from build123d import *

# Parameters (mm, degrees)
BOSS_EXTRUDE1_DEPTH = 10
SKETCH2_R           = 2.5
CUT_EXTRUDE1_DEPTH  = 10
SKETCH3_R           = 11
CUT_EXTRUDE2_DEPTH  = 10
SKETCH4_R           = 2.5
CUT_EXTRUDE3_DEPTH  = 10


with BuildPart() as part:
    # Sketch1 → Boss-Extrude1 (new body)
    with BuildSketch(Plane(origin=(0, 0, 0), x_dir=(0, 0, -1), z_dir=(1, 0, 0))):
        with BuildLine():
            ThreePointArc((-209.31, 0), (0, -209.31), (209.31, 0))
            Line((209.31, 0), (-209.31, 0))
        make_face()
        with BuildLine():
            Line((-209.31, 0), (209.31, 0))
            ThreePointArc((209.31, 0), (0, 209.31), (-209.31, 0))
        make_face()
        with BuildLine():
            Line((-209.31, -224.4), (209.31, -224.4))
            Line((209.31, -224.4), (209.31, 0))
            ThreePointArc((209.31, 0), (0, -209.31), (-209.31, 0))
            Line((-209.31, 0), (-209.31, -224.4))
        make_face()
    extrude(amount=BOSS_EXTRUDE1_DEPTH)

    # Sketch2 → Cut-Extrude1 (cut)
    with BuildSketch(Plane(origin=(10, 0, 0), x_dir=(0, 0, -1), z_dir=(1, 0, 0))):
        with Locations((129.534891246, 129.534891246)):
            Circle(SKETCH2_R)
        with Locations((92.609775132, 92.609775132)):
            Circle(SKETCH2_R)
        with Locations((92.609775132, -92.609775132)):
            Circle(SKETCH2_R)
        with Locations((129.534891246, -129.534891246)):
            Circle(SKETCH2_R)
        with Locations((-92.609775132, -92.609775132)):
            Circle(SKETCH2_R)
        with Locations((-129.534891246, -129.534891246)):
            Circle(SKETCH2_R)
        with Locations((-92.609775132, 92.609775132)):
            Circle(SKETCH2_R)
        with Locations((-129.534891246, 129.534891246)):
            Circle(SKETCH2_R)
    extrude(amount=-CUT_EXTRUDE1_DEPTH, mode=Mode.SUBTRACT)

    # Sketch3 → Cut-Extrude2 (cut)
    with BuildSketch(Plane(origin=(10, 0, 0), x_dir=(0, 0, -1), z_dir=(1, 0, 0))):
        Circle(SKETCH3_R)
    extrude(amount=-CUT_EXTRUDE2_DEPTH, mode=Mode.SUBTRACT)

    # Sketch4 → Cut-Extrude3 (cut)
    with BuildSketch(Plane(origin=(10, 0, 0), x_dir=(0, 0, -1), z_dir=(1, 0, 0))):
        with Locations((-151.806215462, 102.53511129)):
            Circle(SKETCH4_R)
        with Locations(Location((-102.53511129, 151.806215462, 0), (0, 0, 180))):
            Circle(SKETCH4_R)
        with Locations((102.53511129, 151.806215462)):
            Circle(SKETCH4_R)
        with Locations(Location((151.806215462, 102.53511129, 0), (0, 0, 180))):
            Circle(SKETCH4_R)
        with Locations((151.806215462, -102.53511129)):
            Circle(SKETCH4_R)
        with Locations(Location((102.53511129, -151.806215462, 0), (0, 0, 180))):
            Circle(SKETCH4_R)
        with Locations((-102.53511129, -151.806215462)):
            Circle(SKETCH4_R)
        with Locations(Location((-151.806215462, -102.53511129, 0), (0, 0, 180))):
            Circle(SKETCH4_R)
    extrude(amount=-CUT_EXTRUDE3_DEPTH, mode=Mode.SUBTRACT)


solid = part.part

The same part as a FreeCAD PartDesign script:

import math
import FreeCAD as App
import Part
import Sketcher
Q = App.Units.Quantity

doc = App.newDocument("Part")
body = doc.addObject("PartDesign::Body", "Body")

# Sketch on YZ plane
sketch1 = body.newObject("Sketcher::SketchObject", "Sketch")
sketch1.AttachmentSupport = (doc.getObject("YZ_Plane"), [""])
sketch1.MapMode = "FlatFace"
sketch1.addGeometry(Part.ArcOfCircle(Part.Circle(App.Vector(0, 0, 0), App.Vector(0, 0, 1), 209), math.radians(-90), math.radians(90)), False)
sketch1.addGeometry(Part.LineSegment(App.Vector(0, 209, 0), App.Vector(-224, 209, 0)), False)
sketch1.addGeometry(Part.LineSegment(App.Vector(-224, 209, 0), App.Vector(-224, -209, 0)), False)
sketch1.addGeometry(Part.LineSegment(App.Vector(-224, -209, 0), App.Vector(0, -209, 0)), False)
sketch1.addConstraint(Sketcher.Constraint("Tangent", 0, 2, 1, 1))
sketch1.addConstraint(Sketcher.Constraint("Coincident", 1, 2, 2, 1))
sketch1.addConstraint(Sketcher.Constraint("Coincident", 2, 2, 3, 1))
sketch1.addConstraint(Sketcher.Constraint("Tangent", 3, 2, 0, 1))
sketch1.addConstraint(Sketcher.Constraint("Horizontal", 1))
sketch1.addConstraint(Sketcher.Constraint("Vertical", 2))
sketch1.addConstraint(Sketcher.Constraint("Horizontal", 3))
sketch1.addConstraint(Sketcher.Constraint("Coincident", 0, 3, -1, 1))
sketch1.addConstraint(Sketcher.Constraint("Radius", 0, Q("209.31 mm")))
sketch1.addConstraint(Sketcher.Constraint("DistanceX", 1, 2, 1, 1, Q("224.4 mm")))
pad1 = body.newObject("PartDesign::Pad", "Pad")
pad1.Profile = sketch1
pad1.Length = 10

# Sketch on YZ plane
sketch2 = body.newObject("Sketcher::SketchObject", "Sketch001")
sketch2.AttachmentSupport = (doc.getObject("YZ_Plane"), [""])
sketch2.MapMode = "FlatFace"
sketch2.AttachmentOffset = App.Placement(App.Vector(0, 0, 10), App.Rotation())
sketch2.addGeometry(Part.Circle(App.Vector(129.5, -129.5, 0), App.Vector(0, 0, 1), 2.5), False)
sketch2.addGeometry(Part.Circle(App.Vector(92.6, -92.6, 0), App.Vector(0, 0, 1), 2.5), False)
sketch2.addGeometry(Part.Circle(App.Vector(-92.6, -92.6, 0), App.Vector(0, 0, 1), 2.5), False)
sketch2.addGeometry(Part.Circle(App.Vector(-129.5, -129.5, 0), App.Vector(0, 0, 1), 2.5), False)
sketch2.addGeometry(Part.Circle(App.Vector(-92.6, 92.6, 0), App.Vector(0, 0, 1), 2.5), False)
sketch2.addGeometry(Part.Circle(App.Vector(-129.5, 129.5, 0), App.Vector(0, 0, 1), 2.5), False)
sketch2.addGeometry(Part.Circle(App.Vector(92.6, 92.6, 0), App.Vector(0, 0, 1), 2.5), False)
sketch2.addGeometry(Part.Circle(App.Vector(129.5, 129.5, 0), App.Vector(0, 0, 1), 2.5), False)
sketch2.addConstraint(Sketcher.Constraint("Equal", 0, 1))
sketch2.addConstraint(Sketcher.Constraint("Equal", 1, 2))
sketch2.addConstraint(Sketcher.Constraint("Equal", 2, 3))
sketch2.addConstraint(Sketcher.Constraint("Equal", 3, 4))
sketch2.addConstraint(Sketcher.Constraint("Equal", 4, 5))
sketch2.addConstraint(Sketcher.Constraint("Equal", 5, 6))
sketch2.addConstraint(Sketcher.Constraint("Equal", 6, 7))
sketch2.addConstraint(Sketcher.Constraint("Symmetric", 1, 3, 4, 3, -1, 1))
sketch2.addConstraint(Sketcher.Constraint("Symmetric", 0, 3, 5, 3, -1, 1))
sketch2.addConstraint(Sketcher.Constraint("Symmetric", 2, 3, 6, 3, -1, 1))
sketch2.addConstraint(Sketcher.Constraint("Symmetric", 3, 3, 7, 3, -1, 1))
sketch2.addConstraint(Sketcher.Constraint("Symmetric", 1, 3, 2, 3, -2))
sketch2.addConstraint(Sketcher.Constraint("Symmetric", 0, 3, 3, 3, -2))
sketch2.addConstraint(Sketcher.Constraint("Diameter", 0, Q("5 mm")))
sketch2.addConstraint(Sketcher.Constraint("DistanceX", -1, 1, 0, 3, Q("129.534891 mm")))
sketch2.addConstraint(Sketcher.Constraint("DistanceY", 0, 3, -1, 1, Q("129.534891 mm")))
sketch2.addConstraint(Sketcher.Constraint("DistanceX", 2, 3, 1, 3, Q("185.21955 mm")))
sketch2.addConstraint(Sketcher.Constraint("DistanceY", 2, 3, 4, 3, Q("185.21955 mm")))
pocket1 = body.newObject("PartDesign::Pocket", "Pocket")
pocket1.Profile = sketch2
pocket1.Length = 10

# Sketch on YZ plane
sketch3 = body.newObject("Sketcher::SketchObject", "Sketch002")
sketch3.AttachmentSupport = (doc.getObject("YZ_Plane"), [""])
sketch3.MapMode = "FlatFace"
sketch3.AttachmentOffset = App.Placement(App.Vector(0, 0, 10), App.Rotation())
sketch3.addGeometry(Part.Circle(App.Vector(0, 0, 0), App.Vector(0, 0, 1), 11), False)
sketch3.addConstraint(Sketcher.Constraint("Coincident", 0, 3, -1, 1))
sketch3.addConstraint(Sketcher.Constraint("Diameter", 0, Q("22 mm")))
pocket2 = body.newObject("PartDesign::Pocket", "Pocket001")
pocket2.Profile = sketch3
pocket2.Length = 10

# Sketch on YZ plane
sketch4 = body.newObject("Sketcher::SketchObject", "Sketch003")
sketch4.AttachmentSupport = (doc.getObject("YZ_Plane"), [""])
sketch4.MapMode = "FlatFace"
sketch4.AttachmentOffset = App.Placement(App.Vector(0, 0, 10), App.Rotation())
sketch4.addGeometry(Part.Circle(App.Vector(102.5, 151.8, 0), App.Vector(0, 0, 1), 2.5), False)
sketch4.addGeometry(Part.Circle(App.Vector(151.8, 102.5, 0), App.Vector(0, 0, 1), 2.5), False)
sketch4.addGeometry(Part.Circle(App.Vector(151.8, -102.5, 0), App.Vector(0, 0, 1), 2.5), False)
sketch4.addGeometry(Part.Circle(App.Vector(102.5, -151.8, 0), App.Vector(0, 0, 1), 2.5), False)
sketch4.addGeometry(Part.Circle(App.Vector(-102.5, -151.8, 0), App.Vector(0, 0, 1), 2.5), False)
sketch4.addGeometry(Part.Circle(App.Vector(-151.8, -102.5, 0), App.Vector(0, 0, 1), 2.5), False)
sketch4.addGeometry(Part.Circle(App.Vector(-151.8, 102.5, 0), App.Vector(0, 0, 1), 2.5), False)
sketch4.addGeometry(Part.Circle(App.Vector(-102.5, 151.8, 0), App.Vector(0, 0, 1), 2.5), False)
sketch4.addConstraint(Sketcher.Constraint("Equal", 0, 1))
sketch4.addConstraint(Sketcher.Constraint("Equal", 1, 2))
sketch4.addConstraint(Sketcher.Constraint("Equal", 2, 3))
sketch4.addConstraint(Sketcher.Constraint("Equal", 3, 4))
sketch4.addConstraint(Sketcher.Constraint("Equal", 4, 5))
sketch4.addConstraint(Sketcher.Constraint("Equal", 5, 6))
sketch4.addConstraint(Sketcher.Constraint("Equal", 6, 7))
sketch4.addConstraint(Sketcher.Constraint("Symmetric", 0, 3, 4, 3, -1, 1))
sketch4.addConstraint(Sketcher.Constraint("Symmetric", 1, 3, 5, 3, -1, 1))
sketch4.addConstraint(Sketcher.Constraint("Symmetric", 2, 3, 6, 3, -1, 1))
sketch4.addConstraint(Sketcher.Constraint("Symmetric", 3, 3, 7, 3, -1, 1))
sketch4.addConstraint(Sketcher.Constraint("Symmetric", 3, 3, 4, 3, -2))
sketch4.addConstraint(Sketcher.Constraint("Symmetric", 2, 3, 5, 3, -2))
sketch4.addConstraint(Sketcher.Constraint("Diameter", 0, Q("5 mm")))
sketch4.addConstraint(Sketcher.Constraint("DistanceX", -1, 1, 0, 3, Q("102.535111 mm")))
sketch4.addConstraint(Sketcher.Constraint("DistanceY", -1, 1, 1, 3, Q("102.535111 mm")))
sketch4.addConstraint(Sketcher.Constraint("DistanceY", 3, 3, 0, 3, Q("303.612431 mm")))
sketch4.addConstraint(Sketcher.Constraint("DistanceX", 5, 3, 2, 3, Q("303.612431 mm")))
pocket3 = body.newObject("PartDesign::Pocket", "Pocket002")
pocket3.Profile = sketch4
pocket3.Length = 10

doc.recompute()
